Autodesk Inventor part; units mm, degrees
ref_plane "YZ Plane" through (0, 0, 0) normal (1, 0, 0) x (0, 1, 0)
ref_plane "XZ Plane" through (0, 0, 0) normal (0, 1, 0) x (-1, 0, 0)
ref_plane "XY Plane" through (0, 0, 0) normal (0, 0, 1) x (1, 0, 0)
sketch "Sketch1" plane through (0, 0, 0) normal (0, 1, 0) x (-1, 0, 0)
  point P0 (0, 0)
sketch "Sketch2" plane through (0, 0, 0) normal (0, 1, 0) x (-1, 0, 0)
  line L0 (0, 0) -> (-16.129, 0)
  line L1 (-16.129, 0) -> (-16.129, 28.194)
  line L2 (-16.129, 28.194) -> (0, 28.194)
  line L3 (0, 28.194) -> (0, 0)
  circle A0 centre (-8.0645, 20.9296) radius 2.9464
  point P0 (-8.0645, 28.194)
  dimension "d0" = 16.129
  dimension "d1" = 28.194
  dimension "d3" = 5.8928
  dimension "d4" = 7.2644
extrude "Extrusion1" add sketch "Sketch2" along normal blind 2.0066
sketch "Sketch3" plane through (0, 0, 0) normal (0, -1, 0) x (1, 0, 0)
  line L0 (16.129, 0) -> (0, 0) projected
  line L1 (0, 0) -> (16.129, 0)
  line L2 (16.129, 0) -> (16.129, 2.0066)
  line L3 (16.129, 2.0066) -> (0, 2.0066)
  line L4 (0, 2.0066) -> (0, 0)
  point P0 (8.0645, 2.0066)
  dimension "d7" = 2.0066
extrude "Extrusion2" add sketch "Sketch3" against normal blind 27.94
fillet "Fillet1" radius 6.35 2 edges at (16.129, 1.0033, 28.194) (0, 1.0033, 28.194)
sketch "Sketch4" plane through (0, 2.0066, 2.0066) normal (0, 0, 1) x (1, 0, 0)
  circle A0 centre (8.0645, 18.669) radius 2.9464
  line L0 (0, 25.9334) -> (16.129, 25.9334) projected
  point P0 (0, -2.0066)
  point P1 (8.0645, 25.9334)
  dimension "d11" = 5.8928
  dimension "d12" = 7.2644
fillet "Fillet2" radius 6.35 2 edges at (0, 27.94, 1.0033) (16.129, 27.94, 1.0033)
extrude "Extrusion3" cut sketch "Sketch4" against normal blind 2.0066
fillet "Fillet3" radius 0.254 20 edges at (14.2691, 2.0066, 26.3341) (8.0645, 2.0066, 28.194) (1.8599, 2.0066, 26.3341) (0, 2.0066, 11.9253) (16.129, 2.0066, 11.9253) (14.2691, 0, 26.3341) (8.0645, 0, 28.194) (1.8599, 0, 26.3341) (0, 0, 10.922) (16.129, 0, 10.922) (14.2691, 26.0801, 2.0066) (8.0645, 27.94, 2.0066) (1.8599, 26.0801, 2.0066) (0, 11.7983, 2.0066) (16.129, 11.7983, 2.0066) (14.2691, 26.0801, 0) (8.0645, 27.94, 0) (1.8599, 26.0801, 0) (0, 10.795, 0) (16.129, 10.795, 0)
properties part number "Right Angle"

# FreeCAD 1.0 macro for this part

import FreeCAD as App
import Part
import Sketcher
Q = App.Units.Quantity


def edges_at(feature, points):
    """Names of the edges that pass closest to the given points."""
    edges = feature.Shape.Edges
    near = lambda p: min(range(len(edges)), key=lambda i: edges[i].distToShape(Part.Vertex(*p))[0])
    return sorted({f"Edge{near(p) + 1}" for p in points})


def add_polygon(sketch, points):
    """Adds a closed chain of lines whose ends are joined by coincident constraints."""
    first, n = sketch.GeometryCount, len(points)
    for a, b in zip(points, points[1:] + points[:1]):
        sketch.addGeometry(Part.LineSegment(App.Vector(*a, 0), App.Vector(*b, 0)), False)
    for i in range(n):
        sketch.addConstraint(Sketcher.Constraint("Coincident", first + i, 2, first + (i + 1) % n, 1))

doc = App.newDocument("Part")
params = doc.addObject("Spreadsheet::Sheet", "Params")
for row, (alias, value) in enumerate([
    ("sketch1_diameter", "0.232 in"),
    ("sketch1_height", "1.11 in"),
    ("sketch1_width", "0.635 in"),
    ("pad1_length", "0.079 in"),
    ("sketch2_height", "0.079 in"),
    ("sketch2_width", "0.635 in"),
    ("pad2_length", "1.1 in"),
    ("fillet_radius", "0.25 in"),
    ("fillet2_radius", "0.25 in"),
    ("sketch3_diameter", "0.232 in"),
    ("pocket1_length", "0.079 in"),
    ("fillet3_radius", "0.01 in"),
], start=1):
    params.set(f"A{row}", alias)
    params.set(f"B{row}", "=" + value)
    params.setAlias(f"B{row}", alias)

body = doc.addObject("PartDesign::Body", "Body")

sketch1 = body.newObject("Sketcher::SketchObject", "Sketch")
sketch1.AttachmentSupport = (doc.getObject("XZ_Plane"), [""])
sketch1.MapMode = "FlatFace"
add_polygon(sketch1, [(16.129, 0), (0, 0), (0, 28.194), (16.129, 28.194)])
sketch1.addGeometry(Part.Circle(App.Vector(8.0645, 20.9296, 0), App.Vector(0, 0, 1), 2.9464), False)
sketch1.addConstraint(Sketcher.Constraint("Horizontal", 0))
sketch1.addConstraint(Sketcher.Constraint("Vertical", 1))
sketch1.addConstraint(Sketcher.Constraint("Horizontal", 2))
sketch1.addConstraint(Sketcher.Constraint("Vertical", 3))
sketch1.addConstraint(Sketcher.Constraint("Coincident", 0, 2, -1, 1))
sketch1.addConstraint(Sketcher.Constraint("Diameter", 4, Q("0.232 in")))
sketch1.addConstraint(Sketcher.Constraint("DistanceY", 1, 1, 1, 2, Q("1.11 in")))
sketch1.addConstraint(Sketcher.Constraint("DistanceX", 0, 2, 0, 1, Q("0.635 in")))
sketch1.addConstraint(Sketcher.Constraint("DistanceY", 4, 3, 1, 2, Q("0.286 in")))
sketch1.addConstraint(Sketcher.Constraint("DistanceX", -1, 1, 4, 3, Q("0.3175 in")))
sketch1.setExpression("Constraints[9]", "Params.sketch1_diameter")
sketch1.setExpression("Constraints[10]", "Params.sketch1_height")
sketch1.setExpression("Constraints[11]", "Params.sketch1_width")
pad1 = body.newObject("PartDesign::Pad", "Pad")
pad1.Profile = sketch1
pad1.setExpression("Length", "Params.pad1_length")
pad1.Reversed = True

sketch2 = body.newObject("Sketcher::SketchObject", "Sketch001")
sketch2.AttachmentSupport = (doc.getObject("XZ_Plane"), [""])
sketch2.MapMode = "FlatFace"
add_polygon(sketch2, [(0, 0), (16.129, 0), (16.129, 2.0066), (0, 2.0066)])
sketch2.addConstraint(Sketcher.Constraint("Horizontal", 0))
sketch2.addConstraint(Sketcher.Constraint("Vertical", 1))
sketch2.addConstraint(Sketcher.Constraint("Horizontal", 2))
sketch2.addConstraint(Sketcher.Constraint("Vertical", 3))
sketch2.addConstraint(Sketcher.Constraint("Coincident", 3, 2, -1, 1))
sketch2.addConstraint(Sketcher.Constraint("DistanceY", 1, 1, 1, 2, Q("0.079 in")))
sketch2.addConstraint(Sketcher.Constraint("DistanceX", 0, 1, 0, 2, Q("0.635 in")))
sketch2.setExpression("Constraints[9]", "Params.sketch2_height")
sketch2.setExpression("Constraints[10]", "Params.sketch2_width")
pad2 = body.newObject("PartDesign::Pad", "Pad001")
pad2.Profile = sketch2
pad2.setExpression("Length", "Params.pad2_length")
pad2.Reversed = True
doc.recompute()

fillet = body.newObject("PartDesign::Fillet", "Fillet")
fillet.Base = (pad2, edges_at(pad2, [(16.129, 1.003, 28.194), (0, 1.003, 28.194)]))
fillet.setExpression("Radius", "Params.fillet_radius")
doc.recompute()

fillet2 = body.newObject("PartDesign::Fillet", "Fillet001")
fillet2.Base = (fillet, edges_at(fillet, [(0, 27.94, 1.003), (16.129, 27.94, 1.003)]))
fillet2.setExpression("Radius", "Params.fillet2_radius")

sketch3 = body.newObject("Sketcher::SketchObject", "Sketch002")
sketch3.AttachmentSupport = (doc.getObject("XY_Plane"), [""])
sketch3.MapMode = "FlatFace"
sketch3.AttachmentOffset = App.Placement(App.Vector(0, 0, 0.079 * 25.4), App.Rotation())
sketch3.addGeometry(Part.Circle(App.Vector(8.0645, 20.6756, 0), App.Vector(0, 0, 1), 2.9464), False)
sketch3.addConstraint(Sketcher.Constraint("Diameter", 0, Q("0.232 in")))
sketch3.addConstraint(Sketcher.Constraint("DistanceY", -1, 1, 0, 3, Q("0.814 in")))
sketch3.addConstraint(Sketcher.Constraint("DistanceX", -1, 1, 0, 3, Q("0.3175 in")))
sketch3.setExpression("Constraints[0]", "Params.sketch3_diameter")
pocket1 = body.newObject("PartDesign::Pocket", "Pocket")
pocket1.Profile = sketch3
pocket1.setExpression("Length", "Params.pocket1_length")
doc.recompute()

fillet3 = body.newObject("PartDesign::Fillet", "Fillet002")
fillet3.Base = (pocket1, edges_at(pocket1, [
    (14.269, 2.007, 26.334),
    (8.065, 2.007, 28.194),
    (1.86, 2.007, 26.334),
    (0, 2.007, 11.925),
    (16.129, 2.007, 11.925),
    (14.269, 0, 26.334),
    (8.065, 0, 28.194),
    (1.86, 0, 26.334),
    (0, 0, 10.922),
    (16.129, 0, 10.922),
    (14.269, 26.08, 2.007),
    (8.065, 27.94, 2.007),
    (1.86, 26.08, 2.007),
    (0, 11.798, 2.007),
    (16.129, 11.798, 2.007),
    (14.269, 26.08, 0),
    (8.065, 27.94, 0),
    (1.86, 26.08, 0),
    (0, 10.795, 0),
    (16.129, 10.795, 0),
]))
fillet3.setExpression("Radius", "Params.fillet3_radius")

doc.recompute()
